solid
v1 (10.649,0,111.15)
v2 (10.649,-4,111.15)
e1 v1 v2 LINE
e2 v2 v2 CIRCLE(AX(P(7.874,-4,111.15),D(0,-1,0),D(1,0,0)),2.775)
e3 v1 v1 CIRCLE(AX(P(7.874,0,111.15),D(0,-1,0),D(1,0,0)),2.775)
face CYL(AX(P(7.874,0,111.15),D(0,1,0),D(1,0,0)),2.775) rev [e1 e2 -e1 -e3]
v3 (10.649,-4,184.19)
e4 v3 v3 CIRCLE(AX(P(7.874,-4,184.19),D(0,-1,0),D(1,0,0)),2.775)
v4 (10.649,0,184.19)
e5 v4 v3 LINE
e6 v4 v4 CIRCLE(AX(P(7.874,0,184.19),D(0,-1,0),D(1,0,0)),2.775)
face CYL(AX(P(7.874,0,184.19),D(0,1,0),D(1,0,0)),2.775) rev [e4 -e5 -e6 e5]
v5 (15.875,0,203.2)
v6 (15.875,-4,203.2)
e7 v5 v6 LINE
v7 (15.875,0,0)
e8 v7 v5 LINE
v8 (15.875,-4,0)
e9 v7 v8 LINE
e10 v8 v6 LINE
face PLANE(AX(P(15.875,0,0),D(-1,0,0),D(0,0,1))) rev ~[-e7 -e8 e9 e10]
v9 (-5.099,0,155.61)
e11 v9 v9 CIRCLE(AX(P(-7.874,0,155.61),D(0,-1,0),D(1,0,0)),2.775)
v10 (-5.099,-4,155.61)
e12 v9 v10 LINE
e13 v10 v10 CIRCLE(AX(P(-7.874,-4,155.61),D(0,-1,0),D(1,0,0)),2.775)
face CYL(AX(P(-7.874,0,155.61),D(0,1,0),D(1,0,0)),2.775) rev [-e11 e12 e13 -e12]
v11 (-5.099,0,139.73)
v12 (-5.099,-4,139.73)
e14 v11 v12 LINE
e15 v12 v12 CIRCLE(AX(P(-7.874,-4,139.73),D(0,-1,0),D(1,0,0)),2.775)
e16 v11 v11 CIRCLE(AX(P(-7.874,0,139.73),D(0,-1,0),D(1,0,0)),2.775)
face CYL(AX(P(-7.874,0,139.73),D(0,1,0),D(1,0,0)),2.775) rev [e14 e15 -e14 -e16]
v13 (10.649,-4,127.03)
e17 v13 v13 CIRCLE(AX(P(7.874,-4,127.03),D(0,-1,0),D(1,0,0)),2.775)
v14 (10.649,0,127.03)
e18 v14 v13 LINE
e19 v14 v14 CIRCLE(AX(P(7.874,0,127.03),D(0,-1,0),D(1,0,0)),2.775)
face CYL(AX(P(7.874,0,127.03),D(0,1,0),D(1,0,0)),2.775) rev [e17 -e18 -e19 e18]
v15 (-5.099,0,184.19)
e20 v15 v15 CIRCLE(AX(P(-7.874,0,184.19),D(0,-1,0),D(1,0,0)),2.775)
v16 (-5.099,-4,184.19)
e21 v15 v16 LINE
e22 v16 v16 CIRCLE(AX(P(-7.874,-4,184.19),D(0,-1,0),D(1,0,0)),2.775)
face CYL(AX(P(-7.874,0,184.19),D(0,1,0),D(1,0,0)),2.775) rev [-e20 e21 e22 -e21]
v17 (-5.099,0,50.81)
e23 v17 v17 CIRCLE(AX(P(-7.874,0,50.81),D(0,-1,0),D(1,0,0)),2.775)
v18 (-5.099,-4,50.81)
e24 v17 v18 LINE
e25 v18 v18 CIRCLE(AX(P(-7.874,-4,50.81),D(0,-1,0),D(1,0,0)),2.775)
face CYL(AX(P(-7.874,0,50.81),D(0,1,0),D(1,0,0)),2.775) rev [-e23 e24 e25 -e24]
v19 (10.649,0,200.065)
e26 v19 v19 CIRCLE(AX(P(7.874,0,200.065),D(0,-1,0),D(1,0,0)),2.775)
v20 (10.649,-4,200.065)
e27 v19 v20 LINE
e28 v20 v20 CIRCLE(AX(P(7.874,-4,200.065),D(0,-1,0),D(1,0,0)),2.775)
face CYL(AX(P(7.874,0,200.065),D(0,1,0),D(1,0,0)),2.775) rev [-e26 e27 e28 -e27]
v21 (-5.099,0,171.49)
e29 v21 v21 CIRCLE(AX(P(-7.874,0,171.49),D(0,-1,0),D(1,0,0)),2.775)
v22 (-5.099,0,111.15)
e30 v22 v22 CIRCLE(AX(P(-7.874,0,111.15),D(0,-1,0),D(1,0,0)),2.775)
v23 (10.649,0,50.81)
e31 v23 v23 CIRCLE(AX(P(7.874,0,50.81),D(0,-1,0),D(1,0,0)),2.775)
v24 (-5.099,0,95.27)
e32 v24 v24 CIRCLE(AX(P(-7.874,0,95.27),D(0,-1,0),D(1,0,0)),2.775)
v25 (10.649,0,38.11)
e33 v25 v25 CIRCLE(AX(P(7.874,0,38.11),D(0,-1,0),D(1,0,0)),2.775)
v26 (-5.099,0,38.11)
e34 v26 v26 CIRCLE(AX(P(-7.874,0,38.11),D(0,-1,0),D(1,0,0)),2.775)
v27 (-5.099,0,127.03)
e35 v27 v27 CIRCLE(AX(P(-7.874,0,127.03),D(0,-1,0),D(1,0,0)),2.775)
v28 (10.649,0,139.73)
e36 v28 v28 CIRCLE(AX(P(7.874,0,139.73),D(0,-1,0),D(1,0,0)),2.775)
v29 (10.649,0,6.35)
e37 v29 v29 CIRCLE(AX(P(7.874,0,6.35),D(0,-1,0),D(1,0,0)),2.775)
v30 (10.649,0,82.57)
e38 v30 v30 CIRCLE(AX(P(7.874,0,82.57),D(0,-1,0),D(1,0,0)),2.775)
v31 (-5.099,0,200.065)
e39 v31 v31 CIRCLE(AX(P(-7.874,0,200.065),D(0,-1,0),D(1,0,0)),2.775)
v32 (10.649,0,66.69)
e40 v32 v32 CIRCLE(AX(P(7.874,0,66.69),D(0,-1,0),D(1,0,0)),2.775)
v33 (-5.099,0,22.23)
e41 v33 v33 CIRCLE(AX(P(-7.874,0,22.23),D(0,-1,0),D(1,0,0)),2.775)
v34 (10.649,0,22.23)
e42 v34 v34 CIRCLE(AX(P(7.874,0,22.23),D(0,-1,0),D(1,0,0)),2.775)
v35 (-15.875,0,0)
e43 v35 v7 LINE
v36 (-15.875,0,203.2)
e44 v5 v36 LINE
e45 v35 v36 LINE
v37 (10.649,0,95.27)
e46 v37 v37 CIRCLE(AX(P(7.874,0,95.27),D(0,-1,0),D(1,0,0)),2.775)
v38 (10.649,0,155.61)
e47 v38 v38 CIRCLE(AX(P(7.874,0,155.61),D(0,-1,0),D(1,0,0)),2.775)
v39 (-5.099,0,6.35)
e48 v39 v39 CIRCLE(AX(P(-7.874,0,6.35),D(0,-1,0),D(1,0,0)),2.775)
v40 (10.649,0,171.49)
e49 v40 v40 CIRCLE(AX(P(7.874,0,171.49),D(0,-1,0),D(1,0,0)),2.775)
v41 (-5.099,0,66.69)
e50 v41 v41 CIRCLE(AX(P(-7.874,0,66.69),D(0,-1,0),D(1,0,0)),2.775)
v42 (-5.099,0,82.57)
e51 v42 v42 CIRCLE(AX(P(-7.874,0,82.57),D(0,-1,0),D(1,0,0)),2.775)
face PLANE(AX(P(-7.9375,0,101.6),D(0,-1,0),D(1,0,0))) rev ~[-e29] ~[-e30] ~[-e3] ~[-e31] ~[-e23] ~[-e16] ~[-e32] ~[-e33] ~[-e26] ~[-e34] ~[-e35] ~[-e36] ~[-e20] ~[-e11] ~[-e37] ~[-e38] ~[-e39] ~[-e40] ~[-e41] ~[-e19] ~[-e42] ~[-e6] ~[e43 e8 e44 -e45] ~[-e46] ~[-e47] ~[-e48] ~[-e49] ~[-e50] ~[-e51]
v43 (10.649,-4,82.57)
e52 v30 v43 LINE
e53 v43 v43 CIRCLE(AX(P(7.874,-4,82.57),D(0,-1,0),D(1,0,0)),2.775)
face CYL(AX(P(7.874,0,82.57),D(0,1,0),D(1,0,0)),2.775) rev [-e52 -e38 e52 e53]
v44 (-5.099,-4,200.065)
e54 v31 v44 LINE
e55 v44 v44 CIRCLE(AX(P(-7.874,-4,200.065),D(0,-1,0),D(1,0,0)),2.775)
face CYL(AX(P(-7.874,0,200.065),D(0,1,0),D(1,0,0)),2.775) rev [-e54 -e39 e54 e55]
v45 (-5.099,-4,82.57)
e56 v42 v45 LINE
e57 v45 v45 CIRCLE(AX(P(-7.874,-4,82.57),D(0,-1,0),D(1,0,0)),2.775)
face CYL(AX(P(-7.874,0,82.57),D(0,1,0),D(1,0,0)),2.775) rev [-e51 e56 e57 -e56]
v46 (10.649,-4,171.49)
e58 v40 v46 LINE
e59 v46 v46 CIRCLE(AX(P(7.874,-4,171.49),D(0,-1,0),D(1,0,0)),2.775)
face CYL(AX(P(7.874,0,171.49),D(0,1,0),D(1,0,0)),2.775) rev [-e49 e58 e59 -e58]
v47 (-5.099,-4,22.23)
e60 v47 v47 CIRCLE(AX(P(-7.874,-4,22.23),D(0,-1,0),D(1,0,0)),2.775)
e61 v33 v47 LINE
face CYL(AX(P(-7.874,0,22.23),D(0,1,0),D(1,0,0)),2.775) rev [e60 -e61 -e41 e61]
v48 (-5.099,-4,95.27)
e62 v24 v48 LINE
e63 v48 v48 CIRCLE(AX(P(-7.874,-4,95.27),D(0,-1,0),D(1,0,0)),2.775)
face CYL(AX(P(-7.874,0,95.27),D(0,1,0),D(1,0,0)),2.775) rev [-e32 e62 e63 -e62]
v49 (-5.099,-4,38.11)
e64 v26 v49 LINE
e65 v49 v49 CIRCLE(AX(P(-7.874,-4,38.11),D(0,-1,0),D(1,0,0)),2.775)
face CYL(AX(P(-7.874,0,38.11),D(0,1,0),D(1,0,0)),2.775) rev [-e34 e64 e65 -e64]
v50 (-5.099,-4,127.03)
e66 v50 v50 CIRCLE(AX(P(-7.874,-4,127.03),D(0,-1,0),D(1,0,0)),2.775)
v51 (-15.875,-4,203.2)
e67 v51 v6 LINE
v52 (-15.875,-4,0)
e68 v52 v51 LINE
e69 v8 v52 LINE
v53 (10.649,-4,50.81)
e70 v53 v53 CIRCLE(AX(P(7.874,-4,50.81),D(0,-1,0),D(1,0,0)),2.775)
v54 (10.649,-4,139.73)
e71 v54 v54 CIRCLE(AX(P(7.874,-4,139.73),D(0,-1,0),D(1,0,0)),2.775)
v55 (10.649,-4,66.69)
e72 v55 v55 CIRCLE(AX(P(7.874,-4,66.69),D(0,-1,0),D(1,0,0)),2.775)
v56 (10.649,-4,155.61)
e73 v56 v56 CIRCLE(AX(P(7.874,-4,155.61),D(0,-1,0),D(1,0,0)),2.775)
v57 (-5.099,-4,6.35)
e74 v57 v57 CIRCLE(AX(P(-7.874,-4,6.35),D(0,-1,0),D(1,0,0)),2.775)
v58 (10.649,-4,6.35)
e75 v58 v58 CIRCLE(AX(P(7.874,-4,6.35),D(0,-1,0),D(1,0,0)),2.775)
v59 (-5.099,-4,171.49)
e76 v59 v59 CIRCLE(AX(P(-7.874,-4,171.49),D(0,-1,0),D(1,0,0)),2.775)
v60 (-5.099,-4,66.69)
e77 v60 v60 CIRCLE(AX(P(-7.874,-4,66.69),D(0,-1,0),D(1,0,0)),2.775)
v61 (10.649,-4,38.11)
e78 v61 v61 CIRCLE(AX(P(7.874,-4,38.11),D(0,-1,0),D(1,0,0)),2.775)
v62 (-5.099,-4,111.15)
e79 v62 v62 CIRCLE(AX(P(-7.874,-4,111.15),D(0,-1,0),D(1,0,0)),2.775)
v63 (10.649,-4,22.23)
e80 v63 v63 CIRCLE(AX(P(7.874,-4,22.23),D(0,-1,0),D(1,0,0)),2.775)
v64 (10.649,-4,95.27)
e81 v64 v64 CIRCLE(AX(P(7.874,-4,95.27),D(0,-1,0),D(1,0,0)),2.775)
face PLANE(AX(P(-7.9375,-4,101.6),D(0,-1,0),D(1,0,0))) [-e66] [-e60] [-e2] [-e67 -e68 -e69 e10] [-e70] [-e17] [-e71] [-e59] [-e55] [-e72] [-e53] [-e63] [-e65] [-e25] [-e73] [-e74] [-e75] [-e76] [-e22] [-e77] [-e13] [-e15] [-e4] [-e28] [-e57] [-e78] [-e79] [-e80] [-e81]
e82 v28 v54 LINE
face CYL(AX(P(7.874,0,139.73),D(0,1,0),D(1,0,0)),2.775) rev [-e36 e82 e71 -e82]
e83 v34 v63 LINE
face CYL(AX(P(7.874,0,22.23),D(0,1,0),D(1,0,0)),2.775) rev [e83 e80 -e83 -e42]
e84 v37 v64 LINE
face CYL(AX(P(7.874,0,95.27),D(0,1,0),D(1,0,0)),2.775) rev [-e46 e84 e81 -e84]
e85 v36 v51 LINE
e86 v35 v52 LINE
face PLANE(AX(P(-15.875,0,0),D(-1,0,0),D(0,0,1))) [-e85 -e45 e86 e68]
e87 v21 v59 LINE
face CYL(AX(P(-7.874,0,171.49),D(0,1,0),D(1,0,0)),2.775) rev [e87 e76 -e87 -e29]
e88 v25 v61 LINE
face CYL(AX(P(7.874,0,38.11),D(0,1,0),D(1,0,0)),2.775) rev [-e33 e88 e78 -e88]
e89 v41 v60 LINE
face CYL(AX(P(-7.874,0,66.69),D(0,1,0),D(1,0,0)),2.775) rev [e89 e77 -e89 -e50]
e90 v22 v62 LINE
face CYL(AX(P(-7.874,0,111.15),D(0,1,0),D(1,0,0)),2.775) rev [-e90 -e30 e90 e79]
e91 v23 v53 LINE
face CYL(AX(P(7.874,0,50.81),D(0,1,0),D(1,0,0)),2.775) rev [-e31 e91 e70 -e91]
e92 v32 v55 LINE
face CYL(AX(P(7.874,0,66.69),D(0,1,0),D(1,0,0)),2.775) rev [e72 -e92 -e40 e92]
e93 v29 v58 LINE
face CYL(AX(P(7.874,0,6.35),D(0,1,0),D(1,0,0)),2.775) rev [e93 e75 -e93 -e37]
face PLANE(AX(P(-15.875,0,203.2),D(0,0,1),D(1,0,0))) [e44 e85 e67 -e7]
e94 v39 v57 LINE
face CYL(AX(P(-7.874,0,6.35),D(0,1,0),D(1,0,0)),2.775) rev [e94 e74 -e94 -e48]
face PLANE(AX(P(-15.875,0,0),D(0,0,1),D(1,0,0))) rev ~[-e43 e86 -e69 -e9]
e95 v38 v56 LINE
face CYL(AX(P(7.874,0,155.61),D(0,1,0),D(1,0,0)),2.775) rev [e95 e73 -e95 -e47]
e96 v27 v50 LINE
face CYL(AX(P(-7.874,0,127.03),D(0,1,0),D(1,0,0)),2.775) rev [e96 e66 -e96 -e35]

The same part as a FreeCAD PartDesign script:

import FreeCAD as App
import Part
import Sketcher
Q = App.Units.Quantity


def add_polygon(sketch, points):
    """Adds a closed chain of lines whose ends are joined by coincident constraints."""
    first, n = sketch.GeometryCount, len(points)
    for a, b in zip(points, points[1:] + points[:1]):
        sketch.addGeometry(Part.LineSegment(App.Vector(*a, 0), App.Vector(*b, 0)), False)
    for i in range(n):
        sketch.addConstraint(Sketcher.Constraint("Coincident", first + i, 2, first + (i + 1) % n, 1))

doc = App.newDocument("Part")
body = doc.addObject("PartDesign::Body", "Body")

# Sketch on XZ plane
sketch1 = body.newObject("Sketcher::SketchObject", "Sketch")
sketch1.AttachmentSupport = (doc.getObject("XZ_Plane"), [""])
sketch1.MapMode = "FlatFace"
add_polygon(sketch1, [(0, 203.2), (0, 0), (15.9, 0), (15.9, 203.2)])  # lines 0-3
sketch1.addGeometry(Part.Circle(App.Vector(7.9, 6.3, 0), App.Vector(0, 0, 1), 2.8), False)  # 4
sketch1.addGeometry(Part.Circle(App.Vector(7.9, 22.2, 0), App.Vector(0, 0, 1), 2.8), False)  # 5
sketch1.addGeometry(Part.Circle(App.Vector(7.9, 38.1, 0), App.Vector(0, 0, 1), 2.8), False)  # 6
sketch1.addGeometry(Part.Circle(App.Vector(7.9, 50.8, 0), App.Vector(0, 0, 1), 2.8), False)  # 7
sketch1.addGeometry(Part.Circle(App.Vector(7.9, 66.7, 0), App.Vector(0, 0, 1), 2.8), False)  # 8
sketch1.addGeometry(Part.Circle(App.Vector(7.9, 82.6, 0), App.Vector(0, 0, 1), 2.8), False)  # 9
sketch1.addGeometry(Part.Circle(App.Vector(7.9, 95.3, 0), App.Vector(0, 0, 1), 2.8), False)  # 10
sketch1.addGeometry(Part.Circle(App.Vector(7.9, 111.2, 0), App.Vector(0, 0, 1), 2.8), False)  # 11
sketch1.addGeometry(Part.Circle(App.Vector(7.9, 127, 0), App.Vector(0, 0, 1), 2.8), False)  # 12
sketch1.addGeometry(Part.Circle(App.Vector(7.9, 139.7, 0), App.Vector(0, 0, 1), 2.8), False)  # 13
sketch1.addGeometry(Part.Circle(App.Vector(7.9, 155.6, 0), App.Vector(0, 0, 1), 2.8), False)  # 14
sketch1.addGeometry(Part.Circle(App.Vector(7.9, 171.5, 0), App.Vector(0, 0, 1), 2.8), False)  # 15
sketch1.addGeometry(Part.Circle(App.Vector(7.9, 184.2, 0), App.Vector(0, 0, 1), 2.8), False)  # 16
sketch1.addGeometry(Part.Circle(App.Vector(7.9, 200.1, 0), App.Vector(0, 0, 1), 2.8), False)  # 17
sketch1.addConstraint(Sketcher.Constraint("Vertical", 0))
sketch1.addConstraint(Sketcher.Constraint("Horizontal", 1))
sketch1.addConstraint(Sketcher.Constraint("Vertical", 2))
sketch1.addConstraint(Sketcher.Constraint("Horizontal", 3))
sketch1.addConstraint(Sketcher.Constraint("Coincident", 0, 2, -1, 1))
sketch1.addConstraint(Sketcher.Constraint("Equal", 4, 5))
sketch1.addConstraint(Sketcher.Constraint("Equal", 5, 6))
sketch1.addConstraint(Sketcher.Constraint("Equal", 6, 7))
sketch1.addConstraint(Sketcher.Constraint("Equal", 7, 8))
sketch1.addConstraint(Sketcher.Constraint("Equal", 8, 9))
sketch1.addConstraint(Sketcher.Constraint("Equal", 9, 10))
sketch1.addConstraint(Sketcher.Constraint("Equal", 10, 11))
sketch1.addConstraint(Sketcher.Constraint("Equal", 11, 12))
sketch1.addConstraint(Sketcher.Constraint("Equal", 12, 13))
sketch1.addConstraint(Sketcher.Constraint("Equal", 13, 14))
sketch1.addConstraint(Sketcher.Constraint("Equal", 14, 15))
sketch1.addConstraint(Sketcher.Constraint("Equal", 15, 16))
sketch1.addConstraint(Sketcher.Constraint("Equal", 16, 17))
sketch1.addConstraint(Sketcher.Constraint("Vertical", 4, 3, 5, 3))
sketch1.addConstraint(Sketcher.Constraint("Vertical", 5, 3, 6, 3))
sketch1.addConstraint(Sketcher.Constraint("Vertical", 6, 3, 7, 3))
sketch1.addConstraint(Sketcher.Constraint("Vertical", 7, 3, 8, 3))
sketch1.addConstraint(Sketcher.Constraint("Vertical", 8, 3, 9, 3))
sketch1.addConstraint(Sketcher.Constraint("Vertical", 9, 3, 10, 3))
sketch1.addConstraint(Sketcher.Constraint("Vertical", 10, 3, 11, 3))
sketch1.addConstraint(Sketcher.Constraint("Vertical", 11, 3, 12, 3))
sketch1.addConstraint(Sketcher.Constraint("Vertical", 12, 3, 13, 3))
sketch1.addConstraint(Sketcher.Constraint("Vertical", 13, 3, 14, 3))
sketch1.addConstraint(Sketcher.Constraint("Vertical", 14, 3, 15, 3))
sketch1.addConstraint(Sketcher.Constraint("Vertical", 15, 3, 16, 3))
sketch1.addConstraint(Sketcher.Constraint("Vertical", 16, 3, 17, 3))
sketch1.addConstraint(Sketcher.Constraint("DistanceY", 0, 2, 0, 1, Q("8 in")))
sketch1.addConstraint(Sketcher.Constraint("DistanceY", 6, 3, 7, 3, Q("0.5 in")))
sketch1.addConstraint(Sketcher.Constraint("DistanceY", 9, 3, 10, 3, Q("0.5 in")))
sketch1.addConstraint(Sketcher.Constraint("DistanceY", 12, 3, 13, 3, Q("0.5 in")))
sketch1.addConstraint(Sketcher.Constraint("DistanceY", 15, 3, 16, 3, Q("0.5 in")))
sketch1.addConstraint(Sketcher.Constraint("Diameter", 4, Q("5.55 mm")))
sketch1.addConstraint(Sketcher.Constraint("DistanceX", 1, 1, 1, 2, Q("0.625 in")))
sketch1.addConstraint(Sketcher.Constraint("DistanceX", -1, 1, 4, 3, Q("0.31 in")))
sketch1.addConstraint(Sketcher.Constraint("DistanceY", -1, 1, 4, 3, Q("0.25 in")))
sketch1.addConstraint(Sketcher.Constraint("DistanceY", 16, 3, 17, 3, Q("0.625 in")))
sketch1.addConstraint(Sketcher.Constraint("DistanceY", -1, 1, 5, 3, Q("22.23 mm")))
sketch1.addConstraint(Sketcher.Constraint("DistanceY", -1, 1, 6, 3, Q("38.11 mm")))
sketch1.addConstraint(Sketcher.Constraint("DistanceY", -1, 1, 8, 3, Q("66.69 mm")))
sketch1.addConstraint(Sketcher.Constraint("DistanceY", -1, 1, 9, 3, Q("82.57 mm")))
sketch1.addConstraint(Sketcher.Constraint("DistanceY", -1, 1, 11, 3, Q("111.15 mm")))
sketch1.addConstraint(Sketcher.Constraint("DistanceY", -1, 1, 12, 3, Q("127.03 mm")))
sketch1.addConstraint(Sketcher.Constraint("DistanceY", -1, 1, 14, 3, Q("155.61 mm")))
sketch1.addConstraint(Sketcher.Constraint("DistanceY", -1, 1, 15, 3, Q("171.49 mm")))
pad1 = body.newObject("PartDesign::Pad", "Pad")
pad1.Profile = sketch1
pad1.Length = 4

# Sketch on XZ plane
sketch2 = body.newObject("Sketcher::SketchObject", "Sketch001")
sketch2.AttachmentSupport = (doc.getObject("XZ_Plane"), [""])
sketch2.MapMode = "FlatFace"
add_polygon(sketch2, [(-15.9, 203.2), (-15.9, 0), (0, 0), (0, 203.2)])  # lines 0-3
sketch2.addGeometry(Part.Circle(App.Vector(-7.9, 6.3, 0), App.Vector(0, 0, 1), 2.8), False)  # 4
sketch2.addGeometry(Part.Circle(App.Vector(-7.9, 22.2, 0), App.Vector(0, 0, 1), 2.8), False)  # 5
sketch2.addGeometry(Part.Circle(App.Vector(-7.9, 38.1, 0), App.Vector(0, 0, 1), 2.8), False)  # 6
sketch2.addGeometry(Part.Circle(App.Vector(-7.9, 50.8, 0), App.Vector(0, 0, 1), 2.8), False)  # 7
sketch2.addGeometry(Part.Circle(App.Vector(-7.9, 66.7, 0), App.Vector(0, 0, 1), 2.8), False)  # 8
sketch2.addGeometry(Part.Circle(App.Vector(-7.9, 82.6, 0), App.Vector(0, 0, 1), 2.8), False)  # 9
sketch2.addGeometry(Part.Circle(App.Vector(-7.9, 95.3, 0), App.Vector(0, 0, 1), 2.8), False)  # 10
sketch2.addGeometry(Part.Circle(App.Vector(-7.9, 111.2, 0), App.Vector(0, 0, 1), 2.8), False)  # 11
sketch2.addGeometry(Part.Circle(App.Vector(-7.9, 127, 0), App.Vector(0, 0, 1), 2.8), False)  # 12
sketch2.addGeometry(Part.Circle(App.Vector(-7.9, 139.7, 0), App.Vector(0, 0, 1), 2.8), False)  # 13
sketch2.addGeometry(Part.Circle(App.Vector(-7.9, 155.6, 0), App.Vector(0, 0, 1), 2.8), False)  # 14
sketch2.addGeometry(Part.Circle(App.Vector(-7.9, 171.5, 0), App.Vector(0, 0, 1), 2.8), False)  # 15
sketch2.addGeometry(Part.Circle(App.Vector(-7.9, 184.2, 0), App.Vector(0, 0, 1), 2.8), False)  # 16
sketch2.addGeometry(Part.Circle(App.Vector(-7.9, 200.1, 0), App.Vector(0, 0, 1), 2.8), False)  # 17
sketch2.addConstraint(Sketcher.Constraint("Vertical", 0))
sketch2.addConstraint(Sketcher.Constraint("Horizontal", 1))
sketch2.addConstraint(Sketcher.Constraint("Vertical", 2))
sketch2.addConstraint(Sketcher.Constraint("Horizontal", 3))
sketch2.addConstraint(Sketcher.Constraint("Coincident", 1, 2, -1, 1))
sketch2.addConstraint(Sketcher.Constraint("Equal", 4, 5))
sketch2.addConstraint(Sketcher.Constraint("Equal", 5, 6))
sketch2.addConstraint(Sketcher.Constraint("Equal", 6, 7))
sketch2.addConstraint(Sketcher.Constraint("Equal", 7, 8))
sketch2.addConstraint(Sketcher.Constraint("Equal", 8, 9))
sketch2.addConstraint(Sketcher.Constraint("Equal", 9, 10))
sketch2.addConstraint(Sketcher.Constraint("Equal", 10, 11))
sketch2.addConstraint(Sketcher.Constraint("Equal", 11, 12))
sketch2.addConstraint(Sketcher.Constraint("Equal", 12, 13))
sketch2.addConstraint(Sketcher.Constraint("Equal", 13, 14))
sketch2.addConstraint(Sketcher.Constraint("Equal", 14, 15))
sketch2.addConstraint(Sketcher.Constraint("Equal", 15, 16))
sketch2.addConstraint(Sketcher.Constraint("Equal", 16, 17))
sketch2.addConstraint(Sketcher.Constraint("Vertical", 4, 3, 5, 3))
sketch2.addConstraint(Sketcher.Constraint("Vertical", 5, 3, 6, 3))
sketch2.addConstraint(Sketcher.Constraint("Vertical", 6, 3, 7, 3))
sketch2.addConstraint(Sketcher.Constraint("Vertical", 7, 3, 8, 3))
sketch2.addConstraint(Sketcher.Constraint("Vertical", 8, 3, 9, 3))
sketch2.addConstraint(Sketcher.Constraint("Vertical", 9, 3, 10, 3))
sketch2.addConstraint(Sketcher.Constraint("Vertical", 10, 3, 11, 3))
sketch2.addConstraint(Sketcher.Constraint("Vertical", 11, 3, 12, 3))
sketch2.addConstraint(Sketcher.Constraint("Vertical", 12, 3, 13, 3))
sketch2.addConstraint(Sketcher.Constraint("Vertical", 13, 3, 14, 3))
sketch2.addConstraint(Sketcher.Constraint("Vertical", 14, 3, 15, 3))
sketch2.addConstraint(Sketcher.Constraint("Vertical", 15, 3, 16, 3))
sketch2.addConstraint(Sketcher.Constraint("Vertical", 16, 3, 17, 3))
sketch2.addConstraint(Sketcher.Constraint("DistanceY", 0, 2, 0, 1, Q("8 in")))
sketch2.addConstraint(Sketcher.Constraint("DistanceY", 6, 3, 7, 3, Q("0.5 in")))
sketch2.addConstraint(Sketcher.Constraint("DistanceY", 9, 3, 10, 3, Q("0.5 in")))
sketch2.addConstraint(Sketcher.Constraint("DistanceY", 12, 3, 13, 3, Q("0.5 in")))
sketch2.addConstraint(Sketcher.Constraint("DistanceY", 15, 3, 16, 3, Q("0.5 in")))
sketch2.addConstraint(Sketcher.Constraint("Diameter", 4, Q("5.55 mm")))
sketch2.addConstraint(Sketcher.Constraint("DistanceX", 1, 1, 1, 2, Q("0.625 in")))
sketch2.addConstraint(Sketcher.Constraint("DistanceX", 4, 3, -1, 1, Q("0.31 in")))
sketch2.addConstraint(Sketcher.Constraint("DistanceY", -1, 1, 4, 3, Q("0.25 in")))
sketch2.addConstraint(Sketcher.Constraint("DistanceY", 16, 3, 17, 3, Q("0.625 in")))
sketch2.addConstraint(Sketcher.Constraint("DistanceY", -1, 1, 5, 3, Q("22.23 mm")))
sketch2.addConstraint(Sketcher.Constraint("DistanceY", -1, 1, 6, 3, Q("38.11 mm")))
sketch2.addConstraint(Sketcher.Constraint("DistanceY", -1, 1, 8, 3, Q("66.69 mm")))
sketch2.addConstraint(Sketcher.Constraint("DistanceY", -1, 1, 9, 3, Q("82.57 mm")))
sketch2.addConstraint(Sketcher.Constraint("DistanceY", -1, 1, 11, 3, Q("111.15 mm")))
sketch2.addConstraint(Sketcher.Constraint("DistanceY", -1, 1, 12, 3, Q("127.03 mm")))
sketch2.addConstraint(Sketcher.Constraint("DistanceY", -1, 1, 14, 3, Q("155.61 mm")))
sketch2.addConstraint(Sketcher.Constraint("DistanceY", -1, 1, 15, 3, Q("171.49 mm")))
pad2 = body.newObject("PartDesign::Pad", "Pad001")
pad2.Profile = sketch2
pad2.Length = 4

doc.recompute()
